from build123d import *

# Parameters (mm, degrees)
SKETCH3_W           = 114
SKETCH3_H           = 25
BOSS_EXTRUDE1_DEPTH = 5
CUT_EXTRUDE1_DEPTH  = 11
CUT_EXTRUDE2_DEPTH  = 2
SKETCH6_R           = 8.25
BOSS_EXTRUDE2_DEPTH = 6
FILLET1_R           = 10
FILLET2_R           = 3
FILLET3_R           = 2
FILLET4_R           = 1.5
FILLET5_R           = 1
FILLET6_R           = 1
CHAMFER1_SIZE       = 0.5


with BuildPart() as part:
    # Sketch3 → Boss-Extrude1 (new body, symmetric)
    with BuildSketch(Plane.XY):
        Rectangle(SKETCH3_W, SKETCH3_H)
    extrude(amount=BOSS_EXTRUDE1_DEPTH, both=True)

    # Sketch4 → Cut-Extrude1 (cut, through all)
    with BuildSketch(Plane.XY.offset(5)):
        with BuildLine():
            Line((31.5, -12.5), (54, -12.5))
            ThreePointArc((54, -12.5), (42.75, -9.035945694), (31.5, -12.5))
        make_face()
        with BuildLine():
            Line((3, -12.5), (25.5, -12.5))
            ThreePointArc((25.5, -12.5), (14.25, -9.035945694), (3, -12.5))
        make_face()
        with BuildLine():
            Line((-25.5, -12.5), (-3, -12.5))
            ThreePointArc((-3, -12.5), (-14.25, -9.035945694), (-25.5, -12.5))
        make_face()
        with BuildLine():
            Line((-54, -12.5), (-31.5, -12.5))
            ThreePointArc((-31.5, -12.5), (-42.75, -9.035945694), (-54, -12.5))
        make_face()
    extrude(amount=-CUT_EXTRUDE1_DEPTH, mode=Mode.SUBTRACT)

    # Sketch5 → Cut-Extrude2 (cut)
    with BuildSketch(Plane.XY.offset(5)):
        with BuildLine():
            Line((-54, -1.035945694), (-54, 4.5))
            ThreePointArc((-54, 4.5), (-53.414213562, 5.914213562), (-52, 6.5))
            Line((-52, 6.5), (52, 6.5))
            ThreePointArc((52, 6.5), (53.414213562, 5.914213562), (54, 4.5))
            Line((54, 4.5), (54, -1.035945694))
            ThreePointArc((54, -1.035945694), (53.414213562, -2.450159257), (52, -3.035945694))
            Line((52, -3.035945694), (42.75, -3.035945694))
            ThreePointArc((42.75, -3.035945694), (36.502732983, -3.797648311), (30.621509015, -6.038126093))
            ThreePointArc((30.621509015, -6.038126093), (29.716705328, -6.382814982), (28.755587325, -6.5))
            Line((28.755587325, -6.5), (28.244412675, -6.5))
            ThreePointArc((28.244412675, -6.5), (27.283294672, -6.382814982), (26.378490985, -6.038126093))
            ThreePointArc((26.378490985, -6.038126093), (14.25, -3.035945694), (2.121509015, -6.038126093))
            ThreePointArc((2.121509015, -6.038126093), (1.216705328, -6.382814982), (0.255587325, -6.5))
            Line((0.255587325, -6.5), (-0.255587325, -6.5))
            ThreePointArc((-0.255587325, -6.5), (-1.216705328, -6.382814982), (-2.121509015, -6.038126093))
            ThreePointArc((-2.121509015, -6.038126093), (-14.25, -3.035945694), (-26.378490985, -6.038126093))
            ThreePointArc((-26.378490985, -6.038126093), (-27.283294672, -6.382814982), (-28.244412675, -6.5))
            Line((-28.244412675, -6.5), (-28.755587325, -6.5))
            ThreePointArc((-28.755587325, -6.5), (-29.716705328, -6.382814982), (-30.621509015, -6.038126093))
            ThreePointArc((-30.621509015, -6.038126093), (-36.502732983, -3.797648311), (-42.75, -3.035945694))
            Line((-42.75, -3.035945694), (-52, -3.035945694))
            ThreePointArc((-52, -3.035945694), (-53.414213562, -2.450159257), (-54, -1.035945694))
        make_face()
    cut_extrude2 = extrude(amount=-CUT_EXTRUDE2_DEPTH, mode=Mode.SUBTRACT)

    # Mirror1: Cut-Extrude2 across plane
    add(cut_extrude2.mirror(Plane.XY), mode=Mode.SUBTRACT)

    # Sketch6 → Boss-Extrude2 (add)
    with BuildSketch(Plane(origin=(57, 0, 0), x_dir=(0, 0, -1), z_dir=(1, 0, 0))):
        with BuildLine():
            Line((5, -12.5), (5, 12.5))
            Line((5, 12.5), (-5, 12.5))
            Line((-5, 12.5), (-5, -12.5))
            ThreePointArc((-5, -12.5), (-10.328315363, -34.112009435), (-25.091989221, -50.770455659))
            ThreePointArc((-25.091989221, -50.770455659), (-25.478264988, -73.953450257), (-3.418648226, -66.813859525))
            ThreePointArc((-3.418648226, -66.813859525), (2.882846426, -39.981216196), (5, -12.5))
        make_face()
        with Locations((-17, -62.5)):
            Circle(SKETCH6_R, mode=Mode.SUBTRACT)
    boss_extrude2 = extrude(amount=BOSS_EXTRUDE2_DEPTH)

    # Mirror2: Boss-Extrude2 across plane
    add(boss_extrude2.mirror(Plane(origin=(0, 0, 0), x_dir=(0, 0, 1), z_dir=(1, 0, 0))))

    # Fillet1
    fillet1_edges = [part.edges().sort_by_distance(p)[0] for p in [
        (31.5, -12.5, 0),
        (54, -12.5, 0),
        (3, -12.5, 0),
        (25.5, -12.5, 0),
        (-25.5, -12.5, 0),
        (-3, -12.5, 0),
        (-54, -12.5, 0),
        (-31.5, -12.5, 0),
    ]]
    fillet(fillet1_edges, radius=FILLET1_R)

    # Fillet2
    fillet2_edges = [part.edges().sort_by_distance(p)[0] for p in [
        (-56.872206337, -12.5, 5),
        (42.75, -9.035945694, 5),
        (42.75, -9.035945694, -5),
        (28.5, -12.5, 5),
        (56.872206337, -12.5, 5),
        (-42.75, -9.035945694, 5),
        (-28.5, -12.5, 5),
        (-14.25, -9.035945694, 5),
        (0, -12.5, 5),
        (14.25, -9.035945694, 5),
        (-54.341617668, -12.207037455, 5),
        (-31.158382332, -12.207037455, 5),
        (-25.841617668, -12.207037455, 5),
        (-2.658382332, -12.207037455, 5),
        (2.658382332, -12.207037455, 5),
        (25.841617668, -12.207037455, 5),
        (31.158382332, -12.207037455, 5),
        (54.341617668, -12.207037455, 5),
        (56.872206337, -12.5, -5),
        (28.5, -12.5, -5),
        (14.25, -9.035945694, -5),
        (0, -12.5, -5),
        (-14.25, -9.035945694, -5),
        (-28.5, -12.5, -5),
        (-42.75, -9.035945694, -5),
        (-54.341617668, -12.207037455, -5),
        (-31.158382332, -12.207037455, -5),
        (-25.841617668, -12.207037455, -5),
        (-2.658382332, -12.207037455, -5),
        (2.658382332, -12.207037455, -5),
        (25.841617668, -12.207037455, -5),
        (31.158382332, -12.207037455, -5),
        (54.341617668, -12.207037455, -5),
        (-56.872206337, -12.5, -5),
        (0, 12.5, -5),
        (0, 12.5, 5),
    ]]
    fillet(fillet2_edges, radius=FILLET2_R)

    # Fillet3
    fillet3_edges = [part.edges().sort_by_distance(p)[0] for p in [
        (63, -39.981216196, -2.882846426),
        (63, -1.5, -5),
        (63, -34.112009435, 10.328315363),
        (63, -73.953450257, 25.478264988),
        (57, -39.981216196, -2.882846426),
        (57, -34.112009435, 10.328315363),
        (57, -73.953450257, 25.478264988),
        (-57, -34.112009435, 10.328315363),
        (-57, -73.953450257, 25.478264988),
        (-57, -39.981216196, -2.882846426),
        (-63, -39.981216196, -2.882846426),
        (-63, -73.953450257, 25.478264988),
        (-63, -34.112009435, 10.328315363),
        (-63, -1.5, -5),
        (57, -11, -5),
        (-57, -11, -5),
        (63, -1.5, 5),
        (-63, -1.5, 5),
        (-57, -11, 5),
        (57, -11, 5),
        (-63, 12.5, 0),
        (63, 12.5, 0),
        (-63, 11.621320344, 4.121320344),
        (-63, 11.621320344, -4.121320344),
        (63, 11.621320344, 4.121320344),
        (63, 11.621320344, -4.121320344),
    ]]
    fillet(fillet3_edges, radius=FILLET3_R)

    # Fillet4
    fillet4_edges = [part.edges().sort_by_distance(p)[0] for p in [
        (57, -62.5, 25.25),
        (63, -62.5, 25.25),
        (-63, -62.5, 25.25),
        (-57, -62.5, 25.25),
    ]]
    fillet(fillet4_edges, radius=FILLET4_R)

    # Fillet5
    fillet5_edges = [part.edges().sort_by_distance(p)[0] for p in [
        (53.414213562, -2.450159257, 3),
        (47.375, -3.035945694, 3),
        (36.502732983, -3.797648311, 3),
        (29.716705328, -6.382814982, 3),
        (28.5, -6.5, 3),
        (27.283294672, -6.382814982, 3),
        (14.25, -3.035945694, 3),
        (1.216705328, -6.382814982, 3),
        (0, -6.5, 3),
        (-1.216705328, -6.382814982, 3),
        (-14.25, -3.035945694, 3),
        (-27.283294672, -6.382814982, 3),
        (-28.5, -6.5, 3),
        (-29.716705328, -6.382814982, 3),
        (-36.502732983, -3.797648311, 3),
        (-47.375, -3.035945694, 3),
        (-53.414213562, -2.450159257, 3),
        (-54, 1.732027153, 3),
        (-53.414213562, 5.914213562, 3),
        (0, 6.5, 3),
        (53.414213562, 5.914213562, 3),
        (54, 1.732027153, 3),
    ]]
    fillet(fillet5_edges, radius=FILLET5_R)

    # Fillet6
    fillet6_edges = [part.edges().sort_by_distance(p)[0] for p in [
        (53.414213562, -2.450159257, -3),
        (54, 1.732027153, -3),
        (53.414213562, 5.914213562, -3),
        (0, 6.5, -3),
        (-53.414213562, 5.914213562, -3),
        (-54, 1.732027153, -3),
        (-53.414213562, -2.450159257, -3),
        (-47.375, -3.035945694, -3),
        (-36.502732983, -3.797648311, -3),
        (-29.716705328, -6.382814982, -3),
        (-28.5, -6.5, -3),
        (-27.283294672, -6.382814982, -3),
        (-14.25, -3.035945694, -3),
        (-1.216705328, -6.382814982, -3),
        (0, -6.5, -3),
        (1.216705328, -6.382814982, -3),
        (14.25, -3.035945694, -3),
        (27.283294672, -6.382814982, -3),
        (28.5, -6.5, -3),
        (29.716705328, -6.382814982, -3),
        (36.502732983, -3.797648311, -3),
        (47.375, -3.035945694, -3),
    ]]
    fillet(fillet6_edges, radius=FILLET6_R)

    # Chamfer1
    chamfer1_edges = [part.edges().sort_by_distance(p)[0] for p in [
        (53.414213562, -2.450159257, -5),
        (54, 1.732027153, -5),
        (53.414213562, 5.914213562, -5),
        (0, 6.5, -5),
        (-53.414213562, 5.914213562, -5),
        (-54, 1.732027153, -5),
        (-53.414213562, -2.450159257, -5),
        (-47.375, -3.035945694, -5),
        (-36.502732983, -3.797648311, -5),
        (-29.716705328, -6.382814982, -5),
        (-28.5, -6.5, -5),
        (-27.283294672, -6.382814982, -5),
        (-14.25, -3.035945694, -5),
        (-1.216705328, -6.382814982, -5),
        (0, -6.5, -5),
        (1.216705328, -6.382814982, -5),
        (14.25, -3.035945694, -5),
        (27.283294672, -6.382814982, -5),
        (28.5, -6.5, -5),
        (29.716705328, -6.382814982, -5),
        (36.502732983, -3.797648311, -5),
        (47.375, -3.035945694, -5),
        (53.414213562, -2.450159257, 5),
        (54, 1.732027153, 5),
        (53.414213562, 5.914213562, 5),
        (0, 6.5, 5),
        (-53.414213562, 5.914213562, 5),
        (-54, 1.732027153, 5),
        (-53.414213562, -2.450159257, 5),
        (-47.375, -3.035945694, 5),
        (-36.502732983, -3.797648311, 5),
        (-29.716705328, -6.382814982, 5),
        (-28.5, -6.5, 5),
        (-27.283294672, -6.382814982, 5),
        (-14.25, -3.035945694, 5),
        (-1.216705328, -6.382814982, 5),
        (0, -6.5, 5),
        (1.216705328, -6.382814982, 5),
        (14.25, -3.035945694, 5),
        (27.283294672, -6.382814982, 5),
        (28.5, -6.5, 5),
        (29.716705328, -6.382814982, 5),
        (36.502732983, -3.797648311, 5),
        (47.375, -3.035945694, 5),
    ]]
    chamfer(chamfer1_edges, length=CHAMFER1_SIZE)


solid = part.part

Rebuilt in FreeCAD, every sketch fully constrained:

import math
import FreeCAD as App
import Part
import Sketcher

V = App.Vector
Q = App.Units.Quantity


def edges_at(feature, points):
    """Names of the edges that pass closest to the given points."""
    edges = feature.Shape.Edges
    near = lambda p: min(range(len(edges)), key=lambda i: edges[i].distToShape(Part.Vertex(*p))[0])
    return sorted({f"Edge{near(p) + 1}" for p in points})

doc = App.newDocument("Part")
body = doc.addObject("PartDesign::Body", "Body")

sketch1 = doc.addObject("Sketcher::SketchObject", "Sketch")
body.addObject(sketch1)
sketch1.AttachmentSupport = (doc.XY_Plane, [""])
sketch1.MapMode = "FlatFace"
sketch1.addGeometry([
    Part.LineSegment(V(-57, 12, 0), V(-57, -12, 0)),
    Part.LineSegment(V(-57, -12, 0), V(57, -12, 0)),
    Part.LineSegment(V(57, -12, 0), V(57, 12, 0)),
    Part.LineSegment(V(57, 12, 0), V(-57, 12, 0)),
], False)
sketch1.addConstraint([
    Sketcher.Constraint("Coincident", 0, 2, 1, 1),
    Sketcher.Constraint("Coincident", 1, 2, 2, 1),
    Sketcher.Constraint("Coincident", 2, 2, 3, 1),
    Sketcher.Constraint("Coincident", 3, 2, 0, 1),
    Sketcher.Constraint("Vertical", 0),
    Sketcher.Constraint("Horizontal", 1),
    Sketcher.Constraint("Vertical", 2),
    Sketcher.Constraint("Horizontal", 3),
    Sketcher.Constraint("Symmetric", 0, 2, 2, 2, -1, 1),
    Sketcher.Constraint("DistanceX", 1, 1, 1, 2, Q("114 mm")),
    Sketcher.Constraint("DistanceY", 0, 2, 0, 1, Q("25 mm")),
])
pad1 = doc.addObject("PartDesign::Pad", "Pad")
body.addObject(pad1)
pad1.Profile = sketch1
pad1.Length = 10
pad1.Midplane = True

sketch2 = doc.addObject("Sketcher::SketchObject", "Sketch001")
body.addObject(sketch2)
sketch2.AttachmentSupport = (doc.XY_Plane, [""])
sketch2.MapMode = "FlatFace"
sketch2.AttachmentOffset = App.Placement(V(0, 0, 5), App.Rotation())
sketch2.addGeometry([
    Part.LineSegment(V(32, -12, 0), V(54, -12, 0)),
    Part.ArcOfCircle(Part.Circle(V(43, -29, 0), V(0, 0, 1), 20), math.radians(56), math.radians(124)),
    Part.LineSegment(V(3, -12, 0), V(26, -12, 0)),
    Part.ArcOfCircle(Part.Circle(V(14, -29, 0), V(0, 0, 1), 20), math.radians(56), math.radians(124)),
    Part.LineSegment(V(-26, -12, 0), V(-3, -12, 0)),
    Part.ArcOfCircle(Part.Circle(V(-14, -29, 0), V(0, 0, 1), 20), math.radians(56), math.radians(124)),
    Part.LineSegment(V(-54, -12, 0), V(-32, -12, 0)),
    Part.ArcOfCircle(Part.Circle(V(-43, -29, 0), V(0, 0, 1), 20), math.radians(56), math.radians(124)),
], False)
sketch2.addConstraint([
    Sketcher.Constraint("Coincident", 0, 1, 1, 2),
    Sketcher.Constraint("Coincident", 1, 1, 0, 2),
    Sketcher.Constraint("Coincident", 2, 1, 3, 2),
    Sketcher.Constraint("Coincident", 3, 1, 2, 2),
    Sketcher.Constraint("Coincident", 4, 1, 5, 2),
    Sketcher.Constraint("Coincident", 5, 1, 4, 2),
    Sketcher.Constraint("Coincident", 6, 1, 7, 2),
    Sketcher.Constraint("Coincident", 7, 1, 6, 2),
    Sketcher.Constraint("Horizontal", 0),
    Sketcher.Constraint("Horizontal", 2),
    Sketcher.Constraint("Horizontal", 4),
    Sketcher.Constraint("Horizontal", 6),
    Sketcher.Constraint("Equal", 1, 3),
    Sketcher.Constraint("Equal", 3, 5),
    Sketcher.Constraint("Equal", 5, 7),
    Sketcher.Constraint("Symmetric", 3, 3, 5, 3, -2),
    Sketcher.Constraint("Symmetric", 1, 3, 7, 3, -2),
    Sketcher.Constraint("Horizontal", 1, 3, 3, 3),
    Sketcher.Constraint("Horizontal", 1, 1, 2, 1),
    Sketcher.Constraint("Horizontal", 3, 1, 4, 1),
    Sketcher.Constraint("Horizontal", 5, 1, 6, 1),
    Sketcher.Constraint("Radius", 1, Q("20 mm")),
    Sketcher.Constraint("DistanceX", 0, 1, 0, 2, Q("22.5 mm")),
    Sketcher.Constraint("DistanceX", -1, 1, 1, 1, Q("54 mm")),
    Sketcher.Constraint("DistanceX", -1, 1, 2, 1, Q("3 mm")),
    Sketcher.Constraint("DistanceY", 0, 1, -1, 1, Q("12.5 mm")),
])
pocket1 = doc.addObject("PartDesign::Pocket", "Pocket")
body.addObject(pocket1)
pocket1.Profile = sketch2
pocket1.Type = "ThroughAll"

sketch3 = doc.addObject("Sketcher::SketchObject", "Sketch002")
body.addObject(sketch3)
sketch3.AttachmentSupport = (doc.XY_Plane, [""])
sketch3.MapMode = "FlatFace"
sketch3.AttachmentOffset = App.Placement(V(0, 0, 5), App.Rotation())
sketch3.addGeometry([
    Part.LineSegment(V(-54, 4.5, 0), V(-54, -1, 0)),
    Part.ArcOfCircle(Part.Circle(V(-52, -1, 0), V(0, 0, 1), 2), math.radians(180), math.radians(270)),
    Part.LineSegment(V(-52, -3, 0), V(-42.8, -3, 0)),
    Part.ArcOfCircle(Part.Circle(V(-42.8, -29, 0), V(0, 0, 1), 26), math.radians(62), math.radians(90)),
    Part.ArcOfCircle(Part.Circle(V(-28.8, -2.5, 0), V(0, 0, 1), 4), math.radians(-118), math.radians(-90)),
    Part.LineSegment(V(-28.8, -6.5, 0), V(-28.2, -6.5, 0)),
    Part.ArcOfCircle(Part.Circle(V(-28.2, -2.5, 0), V(0, 0, 1), 4), math.radians(-90), math.radians(-62)),
    Part.ArcOfCircle(Part.Circle(V(-14.2, -29, 0), V(0, 0, 1), 26), math.radians(62), math.radians(118)),
    Part.ArcOfCircle(Part.Circle(V(-0.3, -2.5, 0), V(0, 0, 1), 4), math.radians(-118), math.radians(-90)),
    Part.LineSegment(V(-0.3, -6.5, 0), V(0.3, -6.5, 0)),
    Part.ArcOfCircle(Part.Circle(V(0.3, -2.5, 0), V(0, 0, 1), 4), math.radians(-90), math.radians(-62)),
    Part.ArcOfCircle(Part.Circle(V(14.2, -29, 0), V(0, 0, 1), 26), math.radians(62), math.radians(118)),
    Part.ArcOfCircle(Part.Circle(V(28.2, -2.5, 0), V(0, 0, 1), 4), math.radians(-118), math.radians(-90)),
    Part.LineSegment(V(28.2, -6.5, 0), V(28.8, -6.5, 0)),
    Part.ArcOfCircle(Part.Circle(V(28.8, -2.5, 0), V(0, 0, 1), 4), math.radians(-90), math.radians(-62)),
    Part.ArcOfCircle(Part.Circle(V(42.8, -29, 0), V(0, 0, 1), 26), math.radians(90), math.radians(118)),
    Part.LineSegment(V(42.8, -3, 0), V(52, -3, 0)),
    Part.ArcOfCircle(Part.Circle(V(52, -1, 0), V(0, 0, 1), 2), math.radians(-90), math.radians(0)),
    Part.LineSegment(V(54, -1, 0), V(54, 4.5, 0)),
    Part.ArcOfCircle(Part.Circle(V(52, 4.5, 0), V(0, 0, 1), 2), math.radians(0), math.radians(90)),
    Part.LineSegment(V(52, 6.5, 0), V(-52, 6.5, 0)),
    Part.ArcOfCircle(Part.Circle(V(-52, 4.5, 0), V(0, 0, 1), 2), math.radians(90), math.radians(180)),
], False)
sketch3.addConstraint([
    Sketcher.Constraint("Tangent", 0, 2, 1, 1),
    Sketcher.Constraint("Tangent", 1, 2, 2, 1),
    Sketcher.Constraint("Tangent", 2, 2, 3, 2),
    Sketcher.Constraint("Tangent", 3, 1, 4, 1),
    Sketcher.Constraint("Tangent", 4, 2, 5, 1),
    Sketcher.Constraint("Tangent", 5, 2, 6, 1),
    Sketcher.Constraint("Tangent", 6, 2, 7, 2),
    Sketcher.Constraint("Tangent", 7, 1, 8, 1),
    Sketcher.Constraint("Tangent", 8, 2, 9, 1),
    Sketcher.Constraint("Tangent", 9, 2, 10, 1),
    Sketcher.Constraint("Tangent", 10, 2, 11, 2),
    Sketcher.Constraint("Tangent", 11, 1, 12, 1),
    Sketcher.Constraint("Tangent", 12, 2, 13, 1),
    Sketcher.Constraint("Tangent", 13, 2, 14, 1),
    Sketcher.Constraint("Tangent", 14, 2, 15, 2),
    Sketcher.Constraint("Tangent", 15, 1, 16, 1),
    Sketcher.Constraint("Tangent", 16, 2, 17, 1),
    Sketcher.Constraint("Tangent", 17, 2, 18, 1),
    Sketcher.Constraint("Tangent", 18, 2, 19, 1),
    Sketcher.Constraint("Tangent", 19, 2, 20, 1),
    Sketcher.Constraint("Tangent", 20, 2, 21, 1),
    Sketcher.Constraint("Tangent", 21, 2, 0, 1),
    Sketcher.Constraint("Vertical", 0),
    Sketcher.Constraint("Horizontal", 2),
    Sketcher.Constraint("Horizontal", 5),
    Sketcher.Constraint("Horizontal", 9),
    Sketcher.Constraint("Horizontal", 13),
    Sketcher.Constraint("Horizontal", 16),
    Sketcher.Constraint("Vertical", 18),
    Sketcher.Constraint("Horizontal", 20),
    Sketcher.Constraint("Equal", 4, 6),
    Sketcher.Constraint("Equal", 3, 7),
    Sketcher.Constraint("Equal", 6, 8),
    Sketcher.Constraint("Equal", 8, 10),
    Sketcher.Constraint("Equal", 7, 11),
    Sketcher.Constraint("Equal", 10, 12),
    Sketcher.Constraint("Equal", 12, 14),
    Sketcher.Constraint("Equal", 11, 15),
    Sketcher.Constraint("Equal", 1, 17),
    Sketcher.Constraint("Equal", 17, 19),
    Sketcher.Constraint("Equal", 19, 21),
    Sketcher.Constraint("Symmetric", 7, 3, 11, 3, -2),
    Sketcher.Constraint("Symmetric", 4, 3, 14, 3, -2),
    Sketcher.Constraint("Symmetric", 1, 3, 17, 3, -2),
    Sketcher.Constraint("Horizontal", 3, 3, 7, 3),
    Sketcher.Constraint("Horizontal", 6, 3, 8, 3),
    Sketcher.Constraint("Equal", 5, 9),
    Sketcher.Constraint("Radius", 1, Q("2 mm")),
    Sketcher.Constraint("Radius", 3, Q("26 mm")),
    Sketcher.Constraint("Radius", 4, Q("4 mm")),
    Sketcher.Constraint("DistanceX", 20, 2, 20, 1, Q("104 mm")),
    Sketcher.Constraint("DistanceY", 14, 3, 19, 3, Q("7 mm")),
    Sketcher.Constraint("DistanceX", 2, 1, 2, 2, Q("9.25 mm")),
    Sketcher.Constraint("DistanceY", 4, 3, -1, 1, Q("2.5 mm")),
    Sketcher.Constraint("DistanceX", 5, 1, 5, 2, Q("0.511175 mm")),
])
pocket2 = doc.addObject("PartDesign::Pocket", "Pocket001")
body.addObject(pocket2)
pocket2.Profile = sketch3
pocket2.Length = 2
doc.recompute()

mirrored = doc.addObject("PartDesign::Mirrored", "Mirrored")
body.addObject(mirrored)
mirrored.Originals = [pocket2]
mirrored.MirrorPlane = (doc.XY_Plane, [""])
body.Tip = mirrored

sketch4 = doc.addObject("Sketcher::SketchObject", "Sketch003")
body.addObject(sketch4)
sketch4.AttachmentSupport = (doc.YZ_Plane, [""])
sketch4.MapMode = "FlatFace"
sketch4.AttachmentOffset = App.Placement(V(0, 0, 57), App.Rotation())
sketch4.addGeometry([
    Part.LineSegment(V(-12, -5, 0), V(12, -5, 0)),
    Part.LineSegment(V(12, -5, 0), V(12, 5, 0)),
    Part.LineSegment(V(12, 5, 0), V(-12, 5, 0)),
    Part.ArcOfCircle(Part.Circle(V(-12, 51, 0), V(0, 0, 1), 46), math.radians(-145), math.radians(-90)),
    Part.ArcOfCircle(Part.Circle(V(-62, 17, 0), V(0, 0, 1), 14), math.radians(35), math.radians(252)),
    Part.ArcOfCircle(Part.Circle(V(-12, 174, 0), V(0, 0, 1), 179), math.radians(-107.62), math.radians(-90)),
    Part.Circle(V(-62, 17, 0), V(0, 0, 1), 8),
], False)
sketch4.addConstraint([
    Sketcher.Constraint("Coincident", 0, 2, 1, 1),
    Sketcher.Constraint("Coincident", 1, 2, 2, 1),
    Sketcher.Constraint("Tangent", 2, 2, 3, 2),
    Sketcher.Constraint("Tangent", 3, 1, 4, 1),
    Sketcher.Constraint("Tangent", 4, 2, 5, 1),
    Sketcher.Constraint("Tangent", 5, 2, 0, 1),
    Sketcher.Constraint("Horizontal", 0),
    Sketcher.Constraint("Vertical", 1),
    Sketcher.Constraint("Horizontal", 2),
    Sketcher.Constraint("Coincident", 6, 3, 4, 3),
    Sketcher.Constraint("Symmetric", 0, 2, 2, 2, -1, 1),
    Sketcher.Constraint("Vertical", 3, 3, 5, 3),
    Sketcher.Constraint("Diameter", 6, Q("16.5 mm")),
    Sketcher.Constraint("DistanceX", 0, 1, 0, 2, Q("25 mm")),
    Sketcher.Constraint("DistanceY", 1, 1, 1, 2, Q("10 mm")),
    Sketcher.Constraint("Radius", 4, Q("14.25 mm")),
    Sketcher.Constraint("DistanceY", -1, 1, 4, 3, Q("17 mm")),
    Sketcher.Constraint("DistanceX", 4, 3, 3, 3, Q("50 mm")),
])
pad2 = doc.addObject("PartDesign::Pad", "Pad001")
body.addObject(pad2)
pad2.Profile = sketch4
pad2.Length = 6
doc.recompute()

mirrored2 = doc.addObject("PartDesign::Mirrored", "Mirrored001")
body.addObject(mirrored2)
mirrored2.Originals = [pad2]
mirrored2.MirrorPlane = (doc.YZ_Plane, [""])
body.Tip = mirrored2
doc.recompute()

fillet = doc.addObject("PartDesign::Fillet", "Fillet")
body.addObject(fillet)
fillet.Base = (mirrored2, edges_at(mirrored2, [
    (31.5, -12.5, 0),
    (54, -12.5, 0),
    (3, -12.5, 0),
    (25.5, -12.5, 0),
    (-25.5, -12.5, 0),
    (-3, -12.5, 0),
    (-54, -12.5, 0),
    (-31.5, -12.5, 0),
]))
fillet.Radius = 10
doc.recompute()

fillet2 = doc.addObject("PartDesign::Fillet", "Fillet001")
body.addObject(fillet2)
fillet2.Base = (fillet, edges_at(fillet, [
    (-56.872, -12.5, 5),
    (42.75, -9.036, 5),
    (42.75, -9.036, -5),
    (28.5, -12.5, 5),
    (56.872, -12.5, 5),
    (-42.75, -9.036, 5),
    (-28.5, -12.5, 5),
    (-14.25, -9.036, 5),
    (0, -12.5, 5),
    (14.25, -9.036, 5),
    (-54.342, -12.207, 5),
    (-31.158, -12.207, 5),
    (-25.842, -12.207, 5),
    (-2.658, -12.207, 5),
    (2.658, -12.207, 5),
    (25.842, -12.207, 5),
    (31.158, -12.207, 5),
    (54.342, -12.207, 5),
    (56.872, -12.5, -5),
    (28.5, -12.5, -5),
    (14.25, -9.036, -5),
    (0, -12.5, -5),
    (-14.25, -9.036, -5),
    (-28.5, -12.5, -5),
    (-42.75, -9.036, -5),
    (-54.342, -12.207, -5),
    (-31.158, -12.207, -5),
    (-25.842, -12.207, -5),
    (-2.658, -12.207, -5),
    (2.658, -12.207, -5),
    (25.842, -12.207, -5),
    (31.158, -12.207, -5),
    (54.342, -12.207, -5),
    (-56.872, -12.5, -5),
    (0, 12.5, -5),
    (0, 12.5, 5),
]))
fillet2.Radius = 3
doc.recompute()

fillet3 = doc.addObject("PartDesign::Fillet", "Fillet002")
body.addObject(fillet3)
fillet3.Base = (fillet2, edges_at(fillet2, [
    (63, -39.981, -2.883),
    (63, -1.5, -5),
    (63, -34.112, 10.328),
    (63, -73.953, 25.478),
    (57, -39.981, -2.883),
    (57, -34.112, 10.328),
    (57, -73.953, 25.478),
    (-57, -34.112, 10.328),
    (-57, -73.953, 25.478),
    (-57, -39.981, -2.883),
    (-63, -39.981, -2.883),
    (-63, -73.953, 25.478),
    (-63, -34.112, 10.328),
    (-63, -1.5, -5),
    (57, -11, -5),
    (-57, -11, -5),
    (63, -1.5, 5),
    (-63, -1.5, 5),
    (-57, -11, 5),
    (57, -11, 5),
    (-63, 12.5, 0),
    (63, 12.5, 0),
    (-63, 11.621, 4.121),
    (-63, 11.621, -4.121),
    (63, 11.621, 4.121),
    (63, 11.621, -4.121),
]))
fillet3.Radius = 2
doc.recompute()

fillet4 = doc.addObject("PartDesign::Fillet", "Fillet003")
body.addObject(fillet4)
fillet4.Base = (fillet3, edges_at(fillet3, [
    (57, -62.5, 25.25),
    (63, -62.5, 25.25),
    (-63, -62.5, 25.25),
    (-57, -62.5, 25.25),
]))
fillet4.Radius = 1.5
doc.recompute()

fillet5 = doc.addObject("PartDesign::Fillet", "Fillet004")
body.addObject(fillet5)
fillet5.Base = (fillet4, edges_at(fillet4, [
    (53.414, -2.45, 3),
    (47.375, -3.036, 3),
    (36.503, -3.798, 3),
    (29.717, -6.383, 3),
    (28.5, -6.5, 3),
    (27.283, -6.383, 3),
    (14.25, -3.036, 3),
    (1.217, -6.383, 3),
    (0, -6.5, 3),
    (-1.217, -6.383, 3),
    (-14.25, -3.036, 3),
    (-27.283, -6.383, 3),
    (-28.5, -6.5, 3),
    (-29.717, -6.383, 3),
    (-36.503, -3.798, 3),
    (-47.375, -3.036, 3),
    (-53.414, -2.45, 3),
    (-54, 1.732, 3),
    (-53.414, 5.914, 3),
    (0, 6.5, 3),
    (53.414, 5.914, 3),
    (54, 1.732, 3),
]))
fillet5.Radius = 1
doc.recompute()

fillet6 = doc.addObject("PartDesign::Fillet", "Fillet005")
body.addObject(fillet6)
fillet6.Base = (fillet5, edges_at(fillet5, [
    (53.414, -2.45, -3),
    (54, 1.732, -3),
    (53.414, 5.914, -3),
    (0, 6.5, -3),
    (-53.414, 5.914, -3),
    (-54, 1.732, -3),
    (-53.414, -2.45, -3),
    (-47.375, -3.036, -3),
    (-36.503, -3.798, -3),
    (-29.717, -6.383, -3),
    (-28.5, -6.5, -3),
    (-27.283, -6.383, -3),
    (-14.25, -3.036, -3),
    (-1.217, -6.383, -3),
    (0, -6.5, -3),
    (1.217, -6.383, -3),
    (14.25, -3.036, -3),
    (27.283, -6.383, -3),
    (28.5, -6.5, -3),
    (29.717, -6.383, -3),
    (36.503, -3.798, -3),
    (47.375, -3.036, -3),
]))
fillet6.Radius = 1
doc.recompute()

chamfer = doc.addObject("PartDesign::Chamfer", "Chamfer")
body.addObject(chamfer)
chamfer.Base = (fillet6, edges_at(fillet6, [
    (53.414, -2.45, -5),
    (54, 1.732, -5),
    (53.414, 5.914, -5),
    (0, 6.5, -5),
    (-53.414, 5.914, -5),
    (-54, 1.732, -5),
    (-53.414, -2.45, -5),
    (-47.375, -3.036, -5),
    (-36.503, -3.798, -5),
    (-29.717, -6.383, -5),
    (-28.5, -6.5, -5),
    (-27.283, -6.383, -5),
    (-14.25, -3.036, -5),
    (-1.217, -6.383, -5),
    (0, -6.5, -5),
    (1.217, -6.383, -5),
    (14.25, -3.036, -5),
    (27.283, -6.383, -5),
    (28.5, -6.5, -5),
    (29.717, -6.383, -5),
    (36.503, -3.798, -5),
    (47.375, -3.036, -5),
    (53.414, -2.45, 5),
    (54, 1.732, 5),
    (53.414, 5.914, 5),
    (0, 6.5, 5),
    (-53.414, 5.914, 5),
    (-54, 1.732, 5),
    (-53.414, -2.45, 5),
    (-47.375, -3.036, 5),
    (-36.503, -3.798, 5),
    (-29.717, -6.383, 5),
    (-28.5, -6.5, 5),
    (-27.283, -6.383, 5),
    (-14.25, -3.036, 5),
    (-1.217, -6.383, 5),
    (0, -6.5, 5),
    (1.217, -6.383, 5),
    (14.25, -3.036, 5),
    (27.283, -6.383, 5),
    (28.5, -6.5, 5),
    (29.717, -6.383, 5),
    (36.503, -3.798, 5),
    (47.375, -3.036, 5),
]))
chamfer.Size = 0.5

doc.recompute()
